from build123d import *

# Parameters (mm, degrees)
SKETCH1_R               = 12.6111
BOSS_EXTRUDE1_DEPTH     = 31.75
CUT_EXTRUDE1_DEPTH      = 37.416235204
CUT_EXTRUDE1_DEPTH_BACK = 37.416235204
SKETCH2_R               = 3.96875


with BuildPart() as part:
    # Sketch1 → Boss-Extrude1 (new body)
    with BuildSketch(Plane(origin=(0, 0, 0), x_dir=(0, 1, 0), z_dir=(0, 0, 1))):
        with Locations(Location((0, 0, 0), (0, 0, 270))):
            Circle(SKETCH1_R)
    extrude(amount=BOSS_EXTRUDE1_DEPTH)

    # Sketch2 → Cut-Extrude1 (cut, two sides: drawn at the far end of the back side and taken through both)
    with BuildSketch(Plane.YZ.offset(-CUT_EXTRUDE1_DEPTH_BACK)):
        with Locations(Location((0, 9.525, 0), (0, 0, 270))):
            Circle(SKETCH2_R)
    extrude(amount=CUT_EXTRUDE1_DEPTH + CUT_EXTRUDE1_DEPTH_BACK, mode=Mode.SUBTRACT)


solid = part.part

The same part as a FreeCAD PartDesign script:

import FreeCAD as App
import Part
import Sketcher
from FreeCAD import Vector
Q = App.Units.Quantity

doc = App.newDocument("Part")
body = doc.addObject("PartDesign::Body", "Body")

# Sketch on XY plane
sketch1 = body.newObject("Sketcher::SketchObject", "Sketch")
sketch1.AttachmentSupport = (doc.getObject("XY_Plane"), [""])
sketch1.MapMode = "FlatFace"
sketch1.addGeometry(Part.Circle(Vector(0, 0, 0), Vector(0, 0, 1), 13), False)
sketch1.addConstraint([
    Sketcher.Constraint("Coincident", 0, 3, -1, 1),
    Sketcher.Constraint("Diameter", 0, Q("0.993 in")),
])
pad1 = body.newObject("PartDesign::Pad", "Pad")
pad1.Profile = sketch1
pad1.Length = Q("1.25 in")

# Sketch on YZ plane
sketch2 = body.newObject("Sketcher::SketchObject", "Sketch001")
sketch2.AttachmentSupport = (doc.getObject("YZ_Plane"), [""])
sketch2.MapMode = "FlatFace"
sketch2.addGeometry(Part.Circle(Vector(0, 9.5, 0), Vector(0, 0, 1), 4), False)
sketch2.addConstraint([
    Sketcher.Constraint("PointOnObject", 0, 3, -2),
    Sketcher.Constraint("Diameter", 0, Q("0.3125 in")),
    Sketcher.Constraint("DistanceY", -1, 1, 0, 3, Q("0.375 in")),
])
pocket1 = body.newObject("PartDesign::Pocket", "Pocket")
pocket1.Profile = sketch2
pocket1.Type = "ThroughAll"
pocket1.Midplane = True

doc.recompute()
